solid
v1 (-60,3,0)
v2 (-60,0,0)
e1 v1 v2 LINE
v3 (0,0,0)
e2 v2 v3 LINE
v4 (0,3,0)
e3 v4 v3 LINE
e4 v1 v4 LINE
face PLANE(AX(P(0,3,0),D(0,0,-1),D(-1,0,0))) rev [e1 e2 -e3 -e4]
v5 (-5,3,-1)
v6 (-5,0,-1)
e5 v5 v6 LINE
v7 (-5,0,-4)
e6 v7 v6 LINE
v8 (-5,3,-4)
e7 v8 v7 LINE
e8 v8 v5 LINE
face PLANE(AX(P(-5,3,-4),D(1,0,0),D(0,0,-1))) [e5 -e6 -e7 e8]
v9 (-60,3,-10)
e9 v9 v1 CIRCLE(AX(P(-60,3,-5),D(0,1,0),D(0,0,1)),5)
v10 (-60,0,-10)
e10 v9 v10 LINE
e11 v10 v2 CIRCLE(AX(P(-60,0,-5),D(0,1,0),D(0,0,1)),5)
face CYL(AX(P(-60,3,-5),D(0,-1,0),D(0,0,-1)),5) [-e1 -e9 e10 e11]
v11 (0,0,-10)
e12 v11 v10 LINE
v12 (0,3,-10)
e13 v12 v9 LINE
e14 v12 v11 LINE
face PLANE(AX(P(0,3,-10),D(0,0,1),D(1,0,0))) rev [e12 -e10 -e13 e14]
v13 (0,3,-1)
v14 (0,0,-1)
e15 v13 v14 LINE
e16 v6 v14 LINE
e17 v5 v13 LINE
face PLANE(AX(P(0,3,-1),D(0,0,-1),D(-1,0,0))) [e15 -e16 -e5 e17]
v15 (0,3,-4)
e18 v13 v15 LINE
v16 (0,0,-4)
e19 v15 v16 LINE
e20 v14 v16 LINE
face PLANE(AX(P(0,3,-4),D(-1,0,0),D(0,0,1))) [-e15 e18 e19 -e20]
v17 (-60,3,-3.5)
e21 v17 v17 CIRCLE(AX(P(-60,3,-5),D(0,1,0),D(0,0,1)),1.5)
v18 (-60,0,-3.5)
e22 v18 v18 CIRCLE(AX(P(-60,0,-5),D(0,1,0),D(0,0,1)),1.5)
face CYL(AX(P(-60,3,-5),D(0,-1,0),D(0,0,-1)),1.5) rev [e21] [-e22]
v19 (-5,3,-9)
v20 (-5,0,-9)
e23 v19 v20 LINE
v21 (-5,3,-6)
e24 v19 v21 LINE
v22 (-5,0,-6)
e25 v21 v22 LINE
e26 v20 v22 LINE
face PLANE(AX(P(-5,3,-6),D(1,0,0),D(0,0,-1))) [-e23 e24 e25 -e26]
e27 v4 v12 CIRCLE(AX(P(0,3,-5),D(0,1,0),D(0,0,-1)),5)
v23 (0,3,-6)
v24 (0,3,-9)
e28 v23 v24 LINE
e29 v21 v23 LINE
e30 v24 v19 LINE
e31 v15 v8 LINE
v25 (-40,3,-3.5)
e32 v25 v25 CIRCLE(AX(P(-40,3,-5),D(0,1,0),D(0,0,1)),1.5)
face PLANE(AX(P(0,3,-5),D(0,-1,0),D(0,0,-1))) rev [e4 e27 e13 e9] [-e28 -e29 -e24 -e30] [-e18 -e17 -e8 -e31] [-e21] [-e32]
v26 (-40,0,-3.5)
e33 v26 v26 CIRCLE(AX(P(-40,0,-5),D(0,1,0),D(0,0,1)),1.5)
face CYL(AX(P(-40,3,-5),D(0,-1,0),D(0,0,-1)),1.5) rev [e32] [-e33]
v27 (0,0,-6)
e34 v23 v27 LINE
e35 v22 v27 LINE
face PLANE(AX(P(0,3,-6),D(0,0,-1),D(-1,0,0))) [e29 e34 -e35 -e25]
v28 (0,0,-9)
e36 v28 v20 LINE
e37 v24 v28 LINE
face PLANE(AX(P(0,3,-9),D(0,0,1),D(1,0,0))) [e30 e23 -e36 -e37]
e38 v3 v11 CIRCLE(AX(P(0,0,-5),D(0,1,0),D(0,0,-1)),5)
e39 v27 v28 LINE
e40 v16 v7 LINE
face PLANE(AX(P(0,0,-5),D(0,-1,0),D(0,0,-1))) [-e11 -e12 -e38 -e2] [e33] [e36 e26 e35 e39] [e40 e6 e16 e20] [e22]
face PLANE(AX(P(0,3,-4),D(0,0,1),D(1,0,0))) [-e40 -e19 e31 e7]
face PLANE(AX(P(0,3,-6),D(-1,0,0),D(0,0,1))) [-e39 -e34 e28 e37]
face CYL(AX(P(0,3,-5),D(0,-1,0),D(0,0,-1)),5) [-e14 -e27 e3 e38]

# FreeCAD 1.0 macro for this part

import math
import FreeCAD as App
import Part
import Sketcher

V = App.Vector
Q = App.Units.Quantity


def add_polygon(sketch, points):
    """Adds a closed chain of lines whose ends are joined by coincident constraints."""
    first, n = sketch.GeometryCount, len(points)
    for a, b in zip(points, points[1:] + points[:1]):
        sketch.addGeometry(Part.LineSegment(App.Vector(*a, 0), App.Vector(*b, 0)), False)
    for i in range(n):
        sketch.addConstraint(Sketcher.Constraint("Coincident", first + i, 2, first + (i + 1) % n, 1))

doc = App.newDocument("Part")
body = doc.addObject("PartDesign::Body", "Body")

sketch1 = doc.addObject("Sketcher::SketchObject", "Sketch")
body.addObject(sketch1)
sketch1.AttachmentSupport = (doc.XZ_Plane, [""])
sketch1.MapMode = "FlatFace"
sketch1.addGeometry(Part.LineSegment(V(-60, 0, 0), V(0, 0, 0)), False)
sketch1.addGeometry(Part.ArcOfCircle(Part.Circle(V(0, -5, 0), V(0, 0, 1), 5), math.radians(-90), math.radians(90)), False)
sketch1.addGeometry(Part.LineSegment(V(0, -10, 0), V(-60, -10, 0)), False)
sketch1.addGeometry(Part.ArcOfCircle(Part.Circle(V(-60, -5, 0), V(0, 0, 1), 5), math.radians(90), math.radians(270)), False)
add_polygon(sketch1, [(-5, -1), (-5, -4), (0, -4), (0, -1)])
add_polygon(sketch1, [(-5, -6), (-5, -9), (0, -9), (0, -6)])
sketch1.addGeometry(Part.Circle(V(-40, -5, 0), V(0, 0, 1), 1.5), False)
sketch1.addGeometry(Part.Circle(V(-60, -5, 0), V(0, 0, 1), 1.5), False)
sketch1.addConstraint([
    Sketcher.Constraint("Tangent", 0, 2, 1, 2),
    Sketcher.Constraint("Tangent", 1, 1, 2, 1),
    Sketcher.Constraint("Tangent", 2, 2, 3, 2),
    Sketcher.Constraint("Tangent", 3, 1, 0, 1),
    Sketcher.Constraint("Horizontal", 0),
    Sketcher.Constraint("Horizontal", 2),
    Sketcher.Constraint("Vertical", 4),
    Sketcher.Constraint("Horizontal", 5),
    Sketcher.Constraint("Vertical", 6),
    Sketcher.Constraint("Horizontal", 7),
    Sketcher.Constraint("Vertical", 8),
    Sketcher.Constraint("Horizontal", 9),
    Sketcher.Constraint("Vertical", 10),
    Sketcher.Constraint("Horizontal", 11),
    Sketcher.Constraint("Coincident", 0, 2, -1, 1),
    Sketcher.Constraint("Coincident", 13, 3, 3, 3),
    Sketcher.Constraint("Equal", 12, 13),
    Sketcher.Constraint("PointOnObject", 5, 2, -2),
    Sketcher.Constraint("PointOnObject", 9, 2, -2),
    Sketcher.Constraint("Horizontal", 3, 3, 12, 3),
    Sketcher.Constraint("Vertical", 7, 2, 8, 2),
    Sketcher.Constraint("Equal", 6, 8),
    Sketcher.Constraint("Diameter", 12, Q("3 mm")),
    Sketcher.Constraint("Radius", 1, Q("5 mm")),
    Sketcher.Constraint("DistanceX", 0, 1, 0, 2, Q("60 mm")),
    Sketcher.Constraint("DistanceX", 5, 1, 5, 2, Q("5 mm")),
    Sketcher.Constraint("DistanceY", 4, 2, 4, 1, Q("3 mm")),
    Sketcher.Constraint("DistanceX", 12, 3, -1, 1, Q("40 mm")),
    Sketcher.Constraint("DistanceY", 4, 2, -1, 1, Q("4 mm")),
    Sketcher.Constraint("DistanceY", 8, 2, -1, 1, Q("9 mm")),
])
pad1 = doc.addObject("PartDesign::Pad", "Pad")
body.addObject(pad1)
pad1.Profile = sketch1
pad1.Length = 3
pad1.Reversed = True

doc.recompute()
